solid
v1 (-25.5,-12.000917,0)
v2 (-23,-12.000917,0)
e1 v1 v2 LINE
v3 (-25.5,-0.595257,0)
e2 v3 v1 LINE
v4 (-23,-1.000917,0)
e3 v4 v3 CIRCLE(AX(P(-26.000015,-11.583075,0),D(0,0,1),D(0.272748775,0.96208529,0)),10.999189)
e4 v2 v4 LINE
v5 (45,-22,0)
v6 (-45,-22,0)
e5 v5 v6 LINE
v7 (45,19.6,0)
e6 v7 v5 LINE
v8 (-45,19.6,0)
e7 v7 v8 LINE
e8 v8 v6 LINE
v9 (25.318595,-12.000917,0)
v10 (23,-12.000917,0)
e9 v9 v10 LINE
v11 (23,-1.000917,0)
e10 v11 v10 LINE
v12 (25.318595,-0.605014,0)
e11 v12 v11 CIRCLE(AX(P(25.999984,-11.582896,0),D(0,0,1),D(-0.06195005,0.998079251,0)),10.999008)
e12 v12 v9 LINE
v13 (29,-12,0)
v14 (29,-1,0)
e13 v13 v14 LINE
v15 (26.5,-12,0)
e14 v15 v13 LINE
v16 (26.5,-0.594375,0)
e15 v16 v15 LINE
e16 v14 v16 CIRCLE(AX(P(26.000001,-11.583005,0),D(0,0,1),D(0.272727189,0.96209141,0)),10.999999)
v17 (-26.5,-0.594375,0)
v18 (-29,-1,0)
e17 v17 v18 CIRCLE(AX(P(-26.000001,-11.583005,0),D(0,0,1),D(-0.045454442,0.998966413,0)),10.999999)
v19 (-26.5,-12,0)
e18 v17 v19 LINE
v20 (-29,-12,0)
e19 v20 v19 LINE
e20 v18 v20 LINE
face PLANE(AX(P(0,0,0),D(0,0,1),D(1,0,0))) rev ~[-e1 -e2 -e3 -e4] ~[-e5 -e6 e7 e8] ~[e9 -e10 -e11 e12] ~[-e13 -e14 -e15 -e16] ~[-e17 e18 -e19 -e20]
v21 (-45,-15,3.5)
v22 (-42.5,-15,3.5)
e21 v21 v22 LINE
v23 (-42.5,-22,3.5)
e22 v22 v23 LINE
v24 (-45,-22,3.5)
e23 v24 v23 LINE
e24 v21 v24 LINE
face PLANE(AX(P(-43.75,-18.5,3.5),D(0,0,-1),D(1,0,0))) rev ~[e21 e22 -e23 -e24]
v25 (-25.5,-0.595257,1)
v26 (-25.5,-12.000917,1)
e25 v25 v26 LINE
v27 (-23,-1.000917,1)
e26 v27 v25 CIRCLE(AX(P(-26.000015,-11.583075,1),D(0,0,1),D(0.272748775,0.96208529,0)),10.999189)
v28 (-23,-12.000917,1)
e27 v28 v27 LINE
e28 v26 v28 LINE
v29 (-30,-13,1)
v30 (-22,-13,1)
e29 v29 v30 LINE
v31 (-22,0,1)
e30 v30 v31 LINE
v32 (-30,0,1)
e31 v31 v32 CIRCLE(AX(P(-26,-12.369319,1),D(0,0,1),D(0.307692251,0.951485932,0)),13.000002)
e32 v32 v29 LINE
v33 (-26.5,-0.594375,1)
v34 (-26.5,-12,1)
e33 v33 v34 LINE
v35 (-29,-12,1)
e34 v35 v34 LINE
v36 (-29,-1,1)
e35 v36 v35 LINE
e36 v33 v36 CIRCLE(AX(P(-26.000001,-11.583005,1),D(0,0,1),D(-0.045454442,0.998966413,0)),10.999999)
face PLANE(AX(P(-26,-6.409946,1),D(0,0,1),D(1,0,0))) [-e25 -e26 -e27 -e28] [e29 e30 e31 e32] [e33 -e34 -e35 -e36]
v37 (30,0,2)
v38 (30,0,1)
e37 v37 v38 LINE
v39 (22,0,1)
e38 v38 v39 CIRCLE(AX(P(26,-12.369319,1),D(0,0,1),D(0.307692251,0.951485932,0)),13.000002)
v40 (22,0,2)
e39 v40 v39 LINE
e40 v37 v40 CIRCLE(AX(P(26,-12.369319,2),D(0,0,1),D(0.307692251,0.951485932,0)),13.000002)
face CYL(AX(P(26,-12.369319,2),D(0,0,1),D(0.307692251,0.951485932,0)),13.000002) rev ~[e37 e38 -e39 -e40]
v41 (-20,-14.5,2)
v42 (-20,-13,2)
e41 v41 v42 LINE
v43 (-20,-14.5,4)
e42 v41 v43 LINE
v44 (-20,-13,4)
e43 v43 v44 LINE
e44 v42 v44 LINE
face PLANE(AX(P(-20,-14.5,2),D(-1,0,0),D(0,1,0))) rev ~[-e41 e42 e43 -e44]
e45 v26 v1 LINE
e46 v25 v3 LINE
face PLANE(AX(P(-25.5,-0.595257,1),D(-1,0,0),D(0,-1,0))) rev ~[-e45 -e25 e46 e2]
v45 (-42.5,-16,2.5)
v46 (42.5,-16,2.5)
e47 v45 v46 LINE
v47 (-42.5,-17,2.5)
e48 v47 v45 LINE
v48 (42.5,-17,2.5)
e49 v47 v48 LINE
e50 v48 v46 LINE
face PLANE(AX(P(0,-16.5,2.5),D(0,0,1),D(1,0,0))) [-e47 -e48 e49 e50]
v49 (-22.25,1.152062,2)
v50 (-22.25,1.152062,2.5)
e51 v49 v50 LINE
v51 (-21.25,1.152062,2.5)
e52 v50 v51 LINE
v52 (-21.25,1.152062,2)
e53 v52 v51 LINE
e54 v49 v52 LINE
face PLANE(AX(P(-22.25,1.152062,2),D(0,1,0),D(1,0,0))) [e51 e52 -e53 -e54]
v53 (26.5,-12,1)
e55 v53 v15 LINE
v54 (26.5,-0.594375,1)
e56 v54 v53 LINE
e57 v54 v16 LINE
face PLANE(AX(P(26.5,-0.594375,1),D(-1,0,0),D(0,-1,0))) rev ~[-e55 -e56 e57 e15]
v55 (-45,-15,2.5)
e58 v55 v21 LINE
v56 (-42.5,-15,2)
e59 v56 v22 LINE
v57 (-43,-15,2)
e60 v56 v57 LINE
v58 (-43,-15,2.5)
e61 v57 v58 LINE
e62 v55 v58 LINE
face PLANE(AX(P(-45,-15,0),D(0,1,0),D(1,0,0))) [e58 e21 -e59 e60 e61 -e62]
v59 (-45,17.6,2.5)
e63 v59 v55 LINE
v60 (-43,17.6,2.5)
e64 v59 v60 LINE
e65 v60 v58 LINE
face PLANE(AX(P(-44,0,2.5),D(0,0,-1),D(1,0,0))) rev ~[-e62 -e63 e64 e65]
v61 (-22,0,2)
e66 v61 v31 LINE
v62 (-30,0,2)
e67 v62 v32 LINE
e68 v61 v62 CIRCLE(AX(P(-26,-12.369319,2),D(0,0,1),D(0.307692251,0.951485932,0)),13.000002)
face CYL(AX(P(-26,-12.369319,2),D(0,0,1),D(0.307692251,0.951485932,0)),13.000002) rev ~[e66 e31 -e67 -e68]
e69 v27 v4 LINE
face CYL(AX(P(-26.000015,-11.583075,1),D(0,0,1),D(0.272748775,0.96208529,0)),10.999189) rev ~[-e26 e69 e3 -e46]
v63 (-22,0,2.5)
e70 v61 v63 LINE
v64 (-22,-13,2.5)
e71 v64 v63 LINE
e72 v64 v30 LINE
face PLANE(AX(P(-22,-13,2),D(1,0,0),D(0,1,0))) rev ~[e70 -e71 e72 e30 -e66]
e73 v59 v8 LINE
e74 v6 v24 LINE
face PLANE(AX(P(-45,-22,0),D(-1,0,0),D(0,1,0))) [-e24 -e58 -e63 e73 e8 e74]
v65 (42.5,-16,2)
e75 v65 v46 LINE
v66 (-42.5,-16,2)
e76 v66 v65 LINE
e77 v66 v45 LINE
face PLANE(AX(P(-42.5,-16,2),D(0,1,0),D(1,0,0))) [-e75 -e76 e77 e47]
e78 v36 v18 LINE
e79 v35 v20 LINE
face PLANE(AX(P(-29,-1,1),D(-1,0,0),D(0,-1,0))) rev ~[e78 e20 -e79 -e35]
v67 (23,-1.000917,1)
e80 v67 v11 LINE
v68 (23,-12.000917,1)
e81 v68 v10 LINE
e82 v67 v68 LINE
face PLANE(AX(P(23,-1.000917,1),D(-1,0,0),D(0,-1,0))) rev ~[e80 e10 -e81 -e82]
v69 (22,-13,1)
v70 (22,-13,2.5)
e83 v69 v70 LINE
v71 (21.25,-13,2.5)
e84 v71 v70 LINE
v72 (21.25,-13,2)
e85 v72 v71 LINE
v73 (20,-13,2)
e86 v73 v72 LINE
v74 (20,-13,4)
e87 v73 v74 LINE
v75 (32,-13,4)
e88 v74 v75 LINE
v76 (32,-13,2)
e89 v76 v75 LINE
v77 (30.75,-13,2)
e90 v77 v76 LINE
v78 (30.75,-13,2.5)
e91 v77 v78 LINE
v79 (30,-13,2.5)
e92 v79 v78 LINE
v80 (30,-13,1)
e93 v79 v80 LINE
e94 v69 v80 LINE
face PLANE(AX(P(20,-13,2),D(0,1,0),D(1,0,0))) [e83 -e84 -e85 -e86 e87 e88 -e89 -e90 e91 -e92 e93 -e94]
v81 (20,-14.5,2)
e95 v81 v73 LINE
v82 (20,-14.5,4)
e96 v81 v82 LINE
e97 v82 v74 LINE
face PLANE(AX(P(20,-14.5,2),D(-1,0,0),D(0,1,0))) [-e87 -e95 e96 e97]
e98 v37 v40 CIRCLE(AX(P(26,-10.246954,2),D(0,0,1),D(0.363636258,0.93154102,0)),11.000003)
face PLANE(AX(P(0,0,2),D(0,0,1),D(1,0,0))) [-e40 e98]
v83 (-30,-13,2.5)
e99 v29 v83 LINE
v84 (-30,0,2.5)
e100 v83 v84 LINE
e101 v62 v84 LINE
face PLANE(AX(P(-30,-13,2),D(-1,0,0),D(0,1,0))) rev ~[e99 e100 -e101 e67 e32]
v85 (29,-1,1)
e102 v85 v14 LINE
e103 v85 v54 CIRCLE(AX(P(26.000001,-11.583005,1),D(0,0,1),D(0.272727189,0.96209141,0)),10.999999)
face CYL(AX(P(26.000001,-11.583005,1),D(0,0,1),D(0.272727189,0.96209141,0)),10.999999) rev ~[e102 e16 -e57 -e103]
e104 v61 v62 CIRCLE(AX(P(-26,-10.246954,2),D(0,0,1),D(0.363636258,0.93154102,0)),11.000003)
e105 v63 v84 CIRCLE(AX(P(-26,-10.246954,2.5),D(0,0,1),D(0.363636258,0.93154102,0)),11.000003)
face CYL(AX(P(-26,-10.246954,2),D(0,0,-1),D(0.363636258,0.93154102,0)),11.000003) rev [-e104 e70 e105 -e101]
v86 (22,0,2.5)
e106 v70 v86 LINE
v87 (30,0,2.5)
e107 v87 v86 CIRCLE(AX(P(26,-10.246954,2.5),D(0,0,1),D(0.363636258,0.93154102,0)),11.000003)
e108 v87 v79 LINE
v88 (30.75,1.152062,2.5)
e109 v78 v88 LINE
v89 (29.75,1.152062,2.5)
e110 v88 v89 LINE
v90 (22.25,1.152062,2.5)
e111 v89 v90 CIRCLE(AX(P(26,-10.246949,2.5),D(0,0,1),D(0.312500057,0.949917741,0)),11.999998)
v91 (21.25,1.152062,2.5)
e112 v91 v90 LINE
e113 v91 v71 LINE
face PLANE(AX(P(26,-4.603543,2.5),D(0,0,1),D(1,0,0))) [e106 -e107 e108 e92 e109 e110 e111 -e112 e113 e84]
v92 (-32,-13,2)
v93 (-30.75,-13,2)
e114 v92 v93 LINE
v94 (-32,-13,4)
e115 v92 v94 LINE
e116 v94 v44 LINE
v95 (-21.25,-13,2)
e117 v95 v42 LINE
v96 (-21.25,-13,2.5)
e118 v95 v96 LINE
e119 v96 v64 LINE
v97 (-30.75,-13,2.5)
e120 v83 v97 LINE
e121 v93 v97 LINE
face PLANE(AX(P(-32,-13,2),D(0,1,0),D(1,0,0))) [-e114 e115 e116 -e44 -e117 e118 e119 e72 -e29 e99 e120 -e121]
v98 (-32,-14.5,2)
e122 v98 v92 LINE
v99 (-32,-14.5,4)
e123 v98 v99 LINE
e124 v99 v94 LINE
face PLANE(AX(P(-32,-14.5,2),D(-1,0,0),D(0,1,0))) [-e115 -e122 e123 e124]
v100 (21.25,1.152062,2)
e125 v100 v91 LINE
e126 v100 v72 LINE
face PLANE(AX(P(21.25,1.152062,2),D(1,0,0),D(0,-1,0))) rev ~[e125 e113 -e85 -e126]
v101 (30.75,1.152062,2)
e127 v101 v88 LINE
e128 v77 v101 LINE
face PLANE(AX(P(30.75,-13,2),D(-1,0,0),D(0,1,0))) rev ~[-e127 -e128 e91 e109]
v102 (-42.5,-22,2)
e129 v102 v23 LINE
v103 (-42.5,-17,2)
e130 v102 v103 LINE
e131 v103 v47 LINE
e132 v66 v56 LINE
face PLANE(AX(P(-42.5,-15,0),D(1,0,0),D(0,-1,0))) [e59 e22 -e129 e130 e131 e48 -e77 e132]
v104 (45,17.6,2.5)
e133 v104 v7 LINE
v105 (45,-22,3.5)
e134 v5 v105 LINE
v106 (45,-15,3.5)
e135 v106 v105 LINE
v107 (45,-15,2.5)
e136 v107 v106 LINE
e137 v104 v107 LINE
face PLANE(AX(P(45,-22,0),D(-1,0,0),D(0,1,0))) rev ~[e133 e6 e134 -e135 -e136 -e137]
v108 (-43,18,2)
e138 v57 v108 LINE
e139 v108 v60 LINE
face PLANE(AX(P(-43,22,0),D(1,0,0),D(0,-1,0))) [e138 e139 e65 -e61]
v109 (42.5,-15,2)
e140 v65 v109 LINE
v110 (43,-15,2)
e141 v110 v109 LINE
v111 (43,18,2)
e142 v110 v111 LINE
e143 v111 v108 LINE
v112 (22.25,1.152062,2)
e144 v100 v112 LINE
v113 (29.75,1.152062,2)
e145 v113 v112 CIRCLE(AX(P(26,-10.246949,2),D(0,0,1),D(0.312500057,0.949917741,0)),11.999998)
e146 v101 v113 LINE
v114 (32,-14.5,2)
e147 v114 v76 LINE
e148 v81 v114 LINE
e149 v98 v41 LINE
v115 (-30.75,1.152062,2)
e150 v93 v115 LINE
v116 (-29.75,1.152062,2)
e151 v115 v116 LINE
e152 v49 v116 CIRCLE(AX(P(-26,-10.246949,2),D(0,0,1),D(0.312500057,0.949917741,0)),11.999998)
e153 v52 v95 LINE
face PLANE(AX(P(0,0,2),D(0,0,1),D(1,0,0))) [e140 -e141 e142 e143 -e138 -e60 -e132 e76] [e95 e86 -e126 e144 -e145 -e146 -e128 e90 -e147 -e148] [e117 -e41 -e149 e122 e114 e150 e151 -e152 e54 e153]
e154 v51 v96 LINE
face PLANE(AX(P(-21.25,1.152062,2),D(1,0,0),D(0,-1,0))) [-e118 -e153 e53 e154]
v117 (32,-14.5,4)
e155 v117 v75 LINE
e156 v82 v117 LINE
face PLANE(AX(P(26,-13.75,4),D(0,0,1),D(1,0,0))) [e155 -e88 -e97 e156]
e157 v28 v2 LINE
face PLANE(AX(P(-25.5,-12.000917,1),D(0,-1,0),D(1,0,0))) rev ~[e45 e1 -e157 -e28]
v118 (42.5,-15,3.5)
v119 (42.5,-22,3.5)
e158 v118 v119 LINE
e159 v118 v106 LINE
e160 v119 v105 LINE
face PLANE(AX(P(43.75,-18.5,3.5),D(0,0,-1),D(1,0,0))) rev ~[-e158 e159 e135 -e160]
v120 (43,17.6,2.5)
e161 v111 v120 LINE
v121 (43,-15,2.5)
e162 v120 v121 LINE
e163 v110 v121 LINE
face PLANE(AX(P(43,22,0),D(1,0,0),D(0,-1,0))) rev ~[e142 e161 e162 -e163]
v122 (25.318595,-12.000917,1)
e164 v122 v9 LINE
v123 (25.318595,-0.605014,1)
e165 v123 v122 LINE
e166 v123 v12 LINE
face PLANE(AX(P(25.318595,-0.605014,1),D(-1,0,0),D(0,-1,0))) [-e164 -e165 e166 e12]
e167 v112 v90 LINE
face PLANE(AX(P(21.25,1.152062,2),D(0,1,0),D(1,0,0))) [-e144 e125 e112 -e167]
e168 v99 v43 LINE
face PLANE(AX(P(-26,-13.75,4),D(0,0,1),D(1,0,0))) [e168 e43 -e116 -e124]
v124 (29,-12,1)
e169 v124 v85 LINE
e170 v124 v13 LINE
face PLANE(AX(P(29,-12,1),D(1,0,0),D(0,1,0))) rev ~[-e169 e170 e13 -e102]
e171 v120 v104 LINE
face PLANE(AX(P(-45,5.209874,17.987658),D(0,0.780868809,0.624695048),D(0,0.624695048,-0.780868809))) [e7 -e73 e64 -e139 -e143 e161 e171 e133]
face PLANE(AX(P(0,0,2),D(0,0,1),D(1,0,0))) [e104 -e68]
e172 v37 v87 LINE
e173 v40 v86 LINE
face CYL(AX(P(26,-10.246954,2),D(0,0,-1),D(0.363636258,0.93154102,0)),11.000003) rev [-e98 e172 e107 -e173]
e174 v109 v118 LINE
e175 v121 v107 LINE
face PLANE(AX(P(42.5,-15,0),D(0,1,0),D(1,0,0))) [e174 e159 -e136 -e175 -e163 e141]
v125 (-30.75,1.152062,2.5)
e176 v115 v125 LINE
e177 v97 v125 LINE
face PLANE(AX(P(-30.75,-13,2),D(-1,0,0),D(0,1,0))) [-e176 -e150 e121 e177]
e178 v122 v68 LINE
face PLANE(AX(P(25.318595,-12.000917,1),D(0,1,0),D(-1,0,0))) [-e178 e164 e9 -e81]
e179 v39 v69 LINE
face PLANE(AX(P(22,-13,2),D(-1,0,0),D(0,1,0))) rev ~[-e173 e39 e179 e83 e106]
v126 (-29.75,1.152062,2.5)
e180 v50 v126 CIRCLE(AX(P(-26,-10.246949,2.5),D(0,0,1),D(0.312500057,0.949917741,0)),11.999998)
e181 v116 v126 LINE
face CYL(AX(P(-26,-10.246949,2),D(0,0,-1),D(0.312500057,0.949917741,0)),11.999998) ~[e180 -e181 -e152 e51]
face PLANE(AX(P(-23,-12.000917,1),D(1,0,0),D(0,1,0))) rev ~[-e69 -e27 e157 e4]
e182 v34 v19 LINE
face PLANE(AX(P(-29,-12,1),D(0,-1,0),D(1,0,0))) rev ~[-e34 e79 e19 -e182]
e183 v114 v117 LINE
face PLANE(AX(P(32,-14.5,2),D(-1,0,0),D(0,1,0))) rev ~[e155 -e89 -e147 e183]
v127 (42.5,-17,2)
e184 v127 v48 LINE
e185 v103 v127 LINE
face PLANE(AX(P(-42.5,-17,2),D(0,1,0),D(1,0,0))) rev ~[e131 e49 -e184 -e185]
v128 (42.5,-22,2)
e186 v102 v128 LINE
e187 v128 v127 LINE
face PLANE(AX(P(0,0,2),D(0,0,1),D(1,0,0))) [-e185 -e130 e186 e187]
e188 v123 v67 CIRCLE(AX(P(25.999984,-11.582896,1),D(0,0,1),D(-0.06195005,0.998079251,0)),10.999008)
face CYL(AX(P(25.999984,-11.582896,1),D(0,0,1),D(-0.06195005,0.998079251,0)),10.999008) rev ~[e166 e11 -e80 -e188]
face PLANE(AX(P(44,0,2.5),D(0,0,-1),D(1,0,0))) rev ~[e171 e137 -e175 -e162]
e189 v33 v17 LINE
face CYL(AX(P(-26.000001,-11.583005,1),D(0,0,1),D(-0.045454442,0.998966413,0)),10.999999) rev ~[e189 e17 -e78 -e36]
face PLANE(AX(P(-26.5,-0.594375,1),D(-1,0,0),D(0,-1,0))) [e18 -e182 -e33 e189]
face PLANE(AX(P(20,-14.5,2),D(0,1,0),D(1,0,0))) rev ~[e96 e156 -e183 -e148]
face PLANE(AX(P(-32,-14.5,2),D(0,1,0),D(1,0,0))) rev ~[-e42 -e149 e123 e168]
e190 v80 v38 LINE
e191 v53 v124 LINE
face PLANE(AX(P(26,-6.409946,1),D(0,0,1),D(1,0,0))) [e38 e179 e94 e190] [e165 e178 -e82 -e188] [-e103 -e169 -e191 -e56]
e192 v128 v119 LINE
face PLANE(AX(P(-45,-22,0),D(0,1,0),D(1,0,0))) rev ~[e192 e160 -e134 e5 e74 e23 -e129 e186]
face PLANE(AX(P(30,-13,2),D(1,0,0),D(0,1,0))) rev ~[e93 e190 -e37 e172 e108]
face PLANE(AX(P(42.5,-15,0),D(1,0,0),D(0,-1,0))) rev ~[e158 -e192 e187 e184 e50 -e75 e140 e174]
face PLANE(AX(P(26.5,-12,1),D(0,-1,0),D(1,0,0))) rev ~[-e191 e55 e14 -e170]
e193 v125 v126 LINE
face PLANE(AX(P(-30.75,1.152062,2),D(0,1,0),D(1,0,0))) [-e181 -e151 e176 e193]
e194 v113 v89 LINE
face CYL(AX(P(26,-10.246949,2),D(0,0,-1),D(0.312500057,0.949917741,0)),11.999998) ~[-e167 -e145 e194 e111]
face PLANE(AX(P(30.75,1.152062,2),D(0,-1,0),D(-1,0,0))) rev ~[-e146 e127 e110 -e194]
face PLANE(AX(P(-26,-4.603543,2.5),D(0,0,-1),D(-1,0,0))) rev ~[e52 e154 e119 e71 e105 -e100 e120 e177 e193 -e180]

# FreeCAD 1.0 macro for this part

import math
import FreeCAD as App
import Part
import Sketcher

V = App.Vector
Q = App.Units.Quantity

doc = App.newDocument("Part")
params = doc.addObject("Spreadsheet::Sheet", "Params")
for row, (alias, value) in enumerate([
    ("sketch1_width", "90 mm"),
    ("sketch1_height", "44 mm"),
    ("pad1_length", "2 mm"),
    ("sketch2_width", "8 mm"),
    ("sketch2_height", "13 mm"),
    ("pocket1_length", "1 mm"),
    ("sketch3_radius", "10.999999 mm"),
    ("sketch3_height", "11 mm"),
    ("sketch3_width", "2.5 mm"),
    ("pocket2_length", "5 mm"),
    ("sketch4_width", "12 mm"),
    ("sketch4_height", "1.5 mm"),
    ("pad2_length", "2 mm"),
    ("sketch5_width", "2 mm"),
    ("sketch5_height", "44 mm"),
    ("pad3_length", "2.5 mm"),
    ("sketch6_height", "7 mm"),
    ("sketch6_width", "2.5 mm"),
    ("pad4_length", "3.5 mm"),
    ("sketch7_width", "85 mm"),
    ("sketch7_height", "1 mm"),
    ("pad5_length", "0.5 mm"),
    ("sketch8_width", "1 mm"),
    ("sketch8_height", "13 mm"),
    ("sketch8_width2", "0.75 mm"),
    ("pad6_length", "0.5 mm"),
    ("sketch9_width", "20 mm"),
    ("sketch9_height", "25 mm"),
], start=1):
    params.set(f"A{row}", alias)
    params.set(f"B{row}", "=" + value)
    params.setAlias(f"B{row}", alias)

body = doc.addObject("PartDesign::Body", "Body")

# Sketch on XY plane
sketch1 = body.newObject("Sketcher::SketchObject", "Sketch")
sketch1.AttachmentSupport = (doc.getObject("XY_Plane"), [""])
sketch1.MapMode = "FlatFace"
sketch1.addGeometry([
    Part.LineSegment(V(-45, 22, 0), V(-45, -22, 0)),
    Part.LineSegment(V(-45, -22, 0), V(45, -22, 0)),
    Part.LineSegment(V(45, -22, 0), V(45, 22, 0)),
    Part.LineSegment(V(45, 22, 0), V(-45, 22, 0)),
], False)
sketch1.addConstraint([
    Sketcher.Constraint("Coincident", 0, 2, 1, 1),
    Sketcher.Constraint("Coincident", 1, 2, 2, 1),
    Sketcher.Constraint("Coincident", 2, 2, 3, 1),
    Sketcher.Constraint("Coincident", 3, 2, 0, 1),
    Sketcher.Constraint("Vertical", 0),
    Sketcher.Constraint("Horizontal", 1),
    Sketcher.Constraint("Vertical", 2),
    Sketcher.Constraint("Horizontal", 3),
    Sketcher.Constraint("Symmetric", 0, 2, 2, 2, -1, 1),
    Sketcher.Constraint("DistanceX", 1, 1, 1, 2, Q("90 mm")),
    Sketcher.Constraint("DistanceY", 0, 2, 0, 1, Q("44 mm")),
])
sketch1.setExpression("Constraints[9]", "Params.sketch1_width")
sketch1.setExpression("Constraints[10]", "Params.sketch1_height")
pad1 = body.newObject("PartDesign::Pad", "Pad")
pad1.Profile = sketch1
pad1.setExpression("Length", "Params.pad1_length")

# Sketch on XY plane
sketch2 = body.newObject("Sketcher::SketchObject", "Sketch001")
sketch2.AttachmentSupport = (doc.getObject("XY_Plane"), [""])
sketch2.MapMode = "FlatFace"
sketch2.AttachmentOffset = App.Placement(V(0, 0, 2), App.Rotation())
sketch2.addGeometry([
    Part.LineSegment(V(-30, 0, 0), V(-30, -13, 0)),  # 0
    Part.LineSegment(V(-30, -13, 0), V(-22, -13, 0)),  # 1
    Part.LineSegment(V(-22, -13, 0), V(-22, 0, 0)),  # 2
    Part.ArcOfCircle(Part.Circle(V(-26, -12, 0), V(0, 0, 1), 13), math.radians(72), math.radians(108)),  # 3
    Part.LineSegment(V(22, 0, 0), V(22, -13, 0)),  # 4
    Part.LineSegment(V(22, -13, 0), V(30, -13, 0)),  # 5
    Part.LineSegment(V(30, -13, 0), V(30, 0, 0)),  # 6
    Part.ArcOfCircle(Part.Circle(V(26, -12, 0), V(0, 0, 1), 13), math.radians(72), math.radians(108)),  # 7
], False)
sketch2.addConstraint([
    Sketcher.Constraint("Coincident", 0, 2, 1, 1),
    Sketcher.Constraint("Coincident", 1, 2, 2, 1),
    Sketcher.Constraint("Coincident", 2, 2, 3, 1),
    Sketcher.Constraint("Coincident", 3, 2, 0, 1),
    Sketcher.Constraint("Coincident", 4, 2, 5, 1),
    Sketcher.Constraint("Coincident", 5, 2, 6, 1),
    Sketcher.Constraint("Coincident", 6, 2, 7, 1),
    Sketcher.Constraint("Coincident", 7, 2, 4, 1),
    Sketcher.Constraint("Vertical", 0),
    Sketcher.Constraint("Horizontal", 1),
    Sketcher.Constraint("Vertical", 2),
    Sketcher.Constraint("Vertical", 4),
    Sketcher.Constraint("Horizontal", 5),
    Sketcher.Constraint("Vertical", 6),
    Sketcher.Constraint("Equal", 3, 7),
    Sketcher.Constraint("Symmetric", 3, 2, 6, 2, -1, 1),
    Sketcher.Constraint("Symmetric", 2, 2, 7, 2, -1, 1),
    Sketcher.Constraint("Symmetric", 3, 3, 7, 3, -2),
    Sketcher.Constraint("Horizontal", 1, 2, 4, 2),
    Sketcher.Constraint("DistanceX", 1, 1, 1, 2, Q("8 mm")),
    Sketcher.Constraint("DistanceY", 0, 2, 0, 1, Q("13 mm")),
    Sketcher.Constraint("DistanceX", 3, 3, -1, 1, Q("26 mm")),
    Sketcher.Constraint("Radius", 3, Q("13.000002 mm")),
])
sketch2.setExpression("Constraints[19]", "Params.sketch2_width")
sketch2.setExpression("Constraints[20]", "Params.sketch2_height")
pocket1 = body.newObject("PartDesign::Pocket", "Pocket")
pocket1.Profile = sketch2
pocket1.setExpression("Length", "Params.pocket1_length")

# Sketch on XY plane
sketch3 = body.newObject("Sketcher::SketchObject", "Sketch002")
sketch3.AttachmentSupport = (doc.getObject("XY_Plane"), [""])
sketch3.MapMode = "FlatFace"
sketch3.AttachmentOffset = App.Placement(V(0, 0, 1), App.Rotation())
sketch3.addGeometry([
    Part.LineSegment(V(-29, -1, 0), V(-29, -12, 0)),  # 0
    Part.LineSegment(V(-29, -12, 0), V(-26.5, -12, 0)),  # 1
    Part.LineSegment(V(-26.5, -12, 0), V(-26.5, -0.6, 0)),  # 2
    Part.ArcOfCircle(Part.Circle(V(-26, -11.6, 0), V(0, 0, 1), 11), math.radians(92.61), math.radians(105.83)),  # 3
    Part.LineSegment(V(-23, -12, 0), V(-23, -1, 0)),  # 4
    Part.ArcOfCircle(Part.Circle(V(-26, -11.6, 0), V(0, 0, 1), 11), math.radians(74.17), math.radians(87.39)),  # 5
    Part.LineSegment(V(-25.5, -0.6, 0), V(-25.5, -12, 0)),  # 6
    Part.LineSegment(V(-25.5, -12, 0), V(-23, -12, 0)),  # 7
    Part.LineSegment(V(23, -1, 0), V(23, -12, 0)),  # 8
    Part.LineSegment(V(23, -12, 0), V(25.3, -12, 0)),  # 9
    Part.LineSegment(V(25.3, -12, 0), V(25.3, -0.6, 0)),  # 10
    Part.ArcOfCircle(Part.Circle(V(26, -11.6, 0), V(0, 0, 1), 11), math.radians(93.55), math.radians(105.83)),  # 11
    Part.LineSegment(V(29, -12, 0), V(29, -1, 0)),  # 12
    Part.ArcOfCircle(Part.Circle(V(26, -11.6, 0), V(0, 0, 1), 11), math.radians(74.17), math.radians(87.39)),  # 13
    Part.LineSegment(V(26.5, -0.6, 0), V(26.5, -12, 0)),  # 14
    Part.LineSegment(V(26.5, -12, 0), V(29, -12, 0)),  # 15
], False)
sketch3.addConstraint([
    Sketcher.Constraint("Coincident", 0, 2, 1, 1),
    Sketcher.Constraint("Coincident", 1, 2, 2, 1),
    Sketcher.Constraint("Coincident", 2, 2, 3, 1),
    Sketcher.Constraint("Coincident", 3, 2, 0, 1),
    Sketcher.Constraint("Coincident", 4, 2, 5, 1),
    Sketcher.Constraint("Coincident", 5, 2, 6, 1),
    Sketcher.Constraint("Coincident", 6, 2, 7, 1),
    Sketcher.Constraint("Coincident", 7, 2, 4, 1),
    Sketcher.Constraint("Coincident", 8, 2, 9, 1),
    Sketcher.Constraint("Coincident", 9, 2, 10, 1),
    Sketcher.Constraint("Coincident", 10, 2, 11, 1),
    Sketcher.Constraint("Coincident", 11, 2, 8, 1),
    Sketcher.Constraint("Coincident", 12, 2, 13, 1),
    Sketcher.Constraint("Coincident", 13, 2, 14, 1),
    Sketcher.Constraint("Coincident", 14, 2, 15, 1),
    Sketcher.Constraint("Coincident", 15, 2, 12, 1),
    Sketcher.Constraint("Vertical", 0),
    Sketcher.Constraint("Horizontal", 1),
    Sketcher.Constraint("Vertical", 2),
    Sketcher.Constraint("Vertical", 4),
    Sketcher.Constraint("Vertical", 6),
    Sketcher.Constraint("Horizontal", 7),
    Sketcher.Constraint("Vertical", 8),
    Sketcher.Constraint("Horizontal", 9),
    Sketcher.Constraint("Vertical", 10),
    Sketcher.Constraint("Vertical", 12),
    Sketcher.Constraint("Vertical", 14),
    Sketcher.Constraint("Horizontal", 15),
    Sketcher.Constraint("Equal", 3, 13),
    Sketcher.Constraint("Symmetric", 3, 3, 13, 3, -2),
    Sketcher.Constraint("Symmetric", 7, 2, 8, 2, -2),
    Sketcher.Constraint("Symmetric", 1, 2, 14, 2, -2),
    Sketcher.Constraint("Horizontal", 4, 2, 11, 2),
    Sketcher.Constraint("Horizontal", 3, 2, 12, 2),
    Sketcher.Constraint("Equal", 1, 7),
    Sketcher.Constraint("Equal", 0, 4),
    Sketcher.Constraint("Radius", 3, Q("10.999999 mm")),
    Sketcher.Constraint("DistanceY", 0, 2, 0, 1, Q("11 mm")),
    Sketcher.Constraint("DistanceX", 1, 1, 1, 2, Q("2.5 mm")),
    Sketcher.Constraint("DistanceX", 3, 3, -1, 1, Q("26.000001 mm")),
    Sketcher.Constraint("DistanceX", 0, 2, -1, 1, Q("29 mm")),
    Sketcher.Constraint("DistanceY", 0, 2, -1, 1, Q("12 mm")),
    Sketcher.Constraint("DistanceX", 4, 2, -1, 1, Q("23 mm")),
    Sketcher.Constraint("DistanceX", 5, 3, 11, 3, Q("51.999999 mm")),
    Sketcher.Constraint("Radius", 5, Q("10.999189 mm")),
    Sketcher.Constraint("Radius", 11, Q("10.999008 mm")),
    Sketcher.Constraint("DistanceY", 6, 2, 6, 1, Q("11.40566 mm")),
    Sketcher.Constraint("DistanceY", 5, 3, 2, 2, Q("10.9887 mm")),
    Sketcher.Constraint("DistanceX", 9, 1, 9, 2, Q("2.318595 mm")),
])
sketch3.setExpression("Constraints[36]", "Params.sketch3_radius")
sketch3.setExpression("Constraints[37]", "Params.sketch3_height")
sketch3.setExpression("Constraints[38]", "Params.sketch3_width")
pocket2 = body.newObject("PartDesign::Pocket", "Pocket001")
pocket2.Profile = sketch3
pocket2.setExpression("Length", "Params.pocket2_length")

# Sketch on XY plane
sketch4 = body.newObject("Sketcher::SketchObject", "Sketch003")
sketch4.AttachmentSupport = (doc.getObject("XY_Plane"), [""])
sketch4.MapMode = "FlatFace"
sketch4.AttachmentOffset = App.Placement(V(0, 0, 2), App.Rotation())
sketch4.addGeometry([
    Part.LineSegment(V(-32, -13, 0), V(-32, -14.5, 0)),  # 0
    Part.LineSegment(V(-32, -14.5, 0), V(-20, -14.5, 0)),  # 1
    Part.LineSegment(V(-20, -14.5, 0), V(-20, -13, 0)),  # 2
    Part.LineSegment(V(-20, -13, 0), V(-32, -13, 0)),  # 3
    Part.LineSegment(V(20, -13, 0), V(20, -14.5, 0)),  # 4
    Part.LineSegment(V(20, -14.5, 0), V(32, -14.5, 0)),  # 5
    Part.LineSegment(V(32, -14.5, 0), V(32, -13, 0)),  # 6
    Part.LineSegment(V(32, -13, 0), V(20, -13, 0)),  # 7
], False)
sketch4.addConstraint([
    Sketcher.Constraint("Coincident", 0, 2, 1, 1),
    Sketcher.Constraint("Coincident", 1, 2, 2, 1),
    Sketcher.Constraint("Coincident", 2, 2, 3, 1),
    Sketcher.Constraint("Coincident", 3, 2, 0, 1),
    Sketcher.Constraint("Coincident", 4, 2, 5, 1),
    Sketcher.Constraint("Coincident", 5, 2, 6, 1),
    Sketcher.Constraint("Coincident", 6, 2, 7, 1),
    Sketcher.Constraint("Coincident", 7, 2, 4, 1),
    Sketcher.Constraint("Vertical", 0),
    Sketcher.Constraint("Horizontal", 1),
    Sketcher.Constraint("Vertical", 2),
    Sketcher.Constraint("Horizontal", 3),
    Sketcher.Constraint("Vertical", 4),
    Sketcher.Constraint("Horizontal", 5),
    Sketcher.Constraint("Vertical", 6),
    Sketcher.Constraint("Horizontal", 7),
    Sketcher.Constraint("Symmetric", 1, 2, 4, 2, -2),
    Sketcher.Constraint("Symmetric", 3, 2, 6, 2, -2),
    Sketcher.Constraint("DistanceX", 1, 1, 1, 2, Q("12 mm")),
    Sketcher.Constraint("DistanceY", 0, 2, 0, 1, Q("1.5 mm")),
    Sketcher.Constraint("DistanceX", 0, 2, -1, 1, Q("32 mm")),
    Sketcher.Constraint("DistanceY", 2, 2, -1, 1, Q("13 mm")),
])
sketch4.setExpression("Constraints[18]", "Params.sketch4_width")
sketch4.setExpression("Constraints[19]", "Params.sketch4_height")
pad2 = body.newObject("PartDesign::Pad", "Pad001")
pad2.Profile = sketch4
pad2.setExpression("Length", "Params.pad2_length")

# Sketch on XY plane
sketch5 = body.newObject("Sketcher::SketchObject", "Sketch004")
sketch5.AttachmentSupport = (doc.getObject("XY_Plane"), [""])
sketch5.MapMode = "FlatFace"
sketch5.addGeometry([
    Part.LineSegment(V(-45, -22, 0), V(-45, 22, 0)),  # 0
    Part.LineSegment(V(-45, 22, 0), V(-43, 22, 0)),  # 1
    Part.LineSegment(V(-43, 22, 0), V(-43, -22, 0)),  # 2
    Part.LineSegment(V(-43, -22, 0), V(-45, -22, 0)),  # 3
    Part.LineSegment(V(43, -22, 0), V(43, 22, 0)),  # 4
    Part.LineSegment(V(43, 22, 0), V(45, 22, 0)),  # 5
    Part.LineSegment(V(45, 22, 0), V(45, -22, 0)),  # 6
    Part.LineSegment(V(45, -22, 0), V(43, -22, 0)),  # 7
], False)
sketch5.addConstraint([
    Sketcher.Constraint("Coincident", 0, 2, 1, 1),
    Sketcher.Constraint("Coincident", 1, 2, 2, 1),
    Sketcher.Constraint("Coincident", 2, 2, 3, 1),
    Sketcher.Constraint("Coincident", 3, 2, 0, 1),
    Sketcher.Constraint("Coincident", 4, 2, 5, 1),
    Sketcher.Constraint("Coincident", 5, 2, 6, 1),
    Sketcher.Constraint("Coincident", 6, 2, 7, 1),
    Sketcher.Constraint("Coincident", 7, 2, 4, 1),
    Sketcher.Constraint("Vertical", 0),
    Sketcher.Constraint("Horizontal", 1),
    Sketcher.Constraint("Vertical", 2),
    Sketcher.Constraint("Horizontal", 3),
    Sketcher.Constraint("Vertical", 4),
    Sketcher.Constraint("Horizontal", 5),
    Sketcher.Constraint("Vertical", 6),
    Sketcher.Constraint("Horizontal", 7),
    Sketcher.Constraint("Symmetric", 2, 2, 4, 2, -1, 1),
    Sketcher.Constraint("Symmetric", 0, 2, 6, 2, -1, 1),
    Sketcher.Constraint("Horizontal", 1, 2, 4, 2),
    Sketcher.Constraint("DistanceX", 1, 1, 1, 2, Q("2 mm")),
    Sketcher.Constraint("DistanceY", 0, 1, 0, 2, Q("44 mm")),
    Sketcher.Constraint("DistanceX", 0, 2, -1, 1, Q("45 mm")),
])
sketch5.setExpression("Constraints[19]", "Params.sketch5_width")
sketch5.setExpression("Constraints[20]", "Params.sketch5_height")
pad3 = body.newObject("PartDesign::Pad", "Pad002")
pad3.Profile = sketch5
pad3.setExpression("Length", "Params.pad3_length")

# Sketch on XY plane
sketch6 = body.newObject("Sketcher::SketchObject", "Sketch005")
sketch6.AttachmentSupport = (doc.getObject("XY_Plane"), [""])
sketch6.MapMode = "FlatFace"
sketch6.addGeometry([
    Part.LineSegment(V(-45, -22, 0), V(-45, -15, 0)),  # 0
    Part.LineSegment(V(-45, -15, 0), V(-42.5, -15, 0)),  # 1
    Part.LineSegment(V(-42.5, -15, 0), V(-42.5, -22, 0)),  # 2
    Part.LineSegment(V(-42.5, -22, 0), V(-45, -22, 0)),  # 3
    Part.LineSegment(V(42.5, -22, 0), V(42.5, -15, 0)),  # 4
    Part.LineSegment(V(42.5, -15, 0), V(45, -15, 0)),  # 5
    Part.LineSegment(V(45, -15, 0), V(45, -22, 0)),  # 6
    Part.LineSegment(V(45, -22, 0), V(42.5, -22, 0)),  # 7
], False)
sketch6.addConstraint([
    Sketcher.Constraint("Coincident", 0, 2, 1, 1),
    Sketcher.Constraint("Coincident", 1, 2, 2, 1),
    Sketcher.Constraint("Coincident", 2, 2, 3, 1),
    Sketcher.Constraint("Coincident", 3, 2, 0, 1),
    Sketcher.Constraint("Coincident", 4, 2, 5, 1),
    Sketcher.Constraint("Coincident", 5, 2, 6, 1),
    Sketcher.Constraint("Coincident", 6, 2, 7, 1),
    Sketcher.Constraint("Coincident", 7, 2, 4, 1),
    Sketcher.Constraint("Vertical", 0),
    Sketcher.Constraint("Horizontal", 1),
    Sketcher.Constraint("Vertical", 2),
    Sketcher.Constraint("Horizontal", 3),
    Sketcher.Constraint("Vertical", 4),
    Sketcher.Constraint("Horizontal", 5),
    Sketcher.Constraint("Vertical", 6),
    Sketcher.Constraint("Horizontal", 7),
    Sketcher.Constraint("Symmetric", 1, 2, 4, 2, -2),
    Sketcher.Constraint("Symmetric", 3, 2, 6, 2, -2),
    Sketcher.Constraint("DistanceY", 0, 1, 0, 2, Q("7 mm")),
    Sketcher.Constraint("DistanceX", 1, 1, 1, 2, Q("2.5 mm")),
    Sketcher.Constraint("DistanceX", 0, 2, -1, 1, Q("45 mm")),
    Sketcher.Constraint("DistanceY", 0, 2, -1, 1, Q("15 mm")),
])
sketch6.setExpression("Constraints[18]", "Params.sketch6_height")
sketch6.setExpression("Constraints[19]", "Params.sketch6_width")
pad4 = body.newObject("PartDesign::Pad", "Pad003")
pad4.Profile = sketch6
pad4.setExpression("Length", "Params.pad4_length")

# Sketch on XY plane
sketch7 = body.newObject("Sketcher::SketchObject", "Sketch006")
sketch7.AttachmentSupport = (doc.getObject("XY_Plane"), [""])
sketch7.MapMode = "FlatFace"
sketch7.AttachmentOffset = App.Placement(V(0, 0, 2), App.Rotation())
sketch7.addGeometry([
    Part.LineSegment(V(-42.5, -16, 0), V(-42.5, -17, 0)),
    Part.LineSegment(V(-42.5, -17, 0), V(42.5, -17, 0)),
    Part.LineSegment(V(42.5, -17, 0), V(42.5, -16, 0)),
    Part.LineSegment(V(42.5, -16, 0), V(-42.5, -16, 0)),
], False)
sketch7.addConstraint([
    Sketcher.Constraint("Coincident", 0, 2, 1, 1),
    Sketcher.Constraint("Coincident", 1, 2, 2, 1),
    Sketcher.Constraint("Coincident", 2, 2, 3, 1),
    Sketcher.Constraint("Coincident", 3, 2, 0, 1),
    Sketcher.Constraint("Vertical", 0),
    Sketcher.Constraint("Horizontal", 1),
    Sketcher.Constraint("Vertical", 2),
    Sketcher.Constraint("Horizontal", 3),
    Sketcher.Constraint("DistanceX", 1, 1, 1, 2, Q("85 mm")),
    Sketcher.Constraint("DistanceY", 0, 2, 0, 1, Q("1 mm")),
    Sketcher.Constraint("DistanceY", 0, 2, -1, 1, Q("17 mm")),
    Sketcher.Constraint("DistanceX", 0, 2, -1, 1, Q("42.5 mm")),
])
sketch7.setExpression("Constraints[8]", "Params.sketch7_width")
sketch7.setExpression("Constraints[9]", "Params.sketch7_height")
pad5 = body.newObject("PartDesign::Pad", "Pad004")
pad5.Profile = sketch7
pad5.setExpression("Length", "Params.pad5_length")

# Sketch on XY plane
sketch8 = body.newObject("Sketcher::SketchObject", "Sketch007")
sketch8.AttachmentSupport = (doc.getObject("XY_Plane"), [""])
sketch8.MapMode = "FlatFace"
sketch8.AttachmentOffset = App.Placement(V(0, 0, 2), App.Rotation())
sketch8.addGeometry([
    Part.LineSegment(V(-30.8, 1.2, 0), V(-30.8, -13, 0)),  # 0
    Part.LineSegment(V(-30.8, -13, 0), V(-30, -13, 0)),  # 1
    Part.LineSegment(V(-30, -13, 0), V(-30, 0, 0)),  # 2
    Part.ArcOfCircle(Part.Circle(V(-26, -10.2, 0), V(0, 0, 1), 11), math.radians(69), math.radians(111)),  # 3
    Part.LineSegment(V(-22, 0, 0), V(-22, -13, 0)),  # 4
    Part.LineSegment(V(-22, -13, 0), V(-21.2, -13, 0)),  # 5
    Part.LineSegment(V(-21.2, -13, 0), V(-21.2, 1.2, 0)),  # 6
    Part.LineSegment(V(-21.2, 1.2, 0), V(-22.2, 1.2, 0)),  # 7
    Part.ArcOfCircle(Part.Circle(V(-26, -10.2, 0), V(0, 0, 1), 12), math.radians(72), math.radians(108)),  # 8
    Part.LineSegment(V(-29.8, 1.2, 0), V(-30.8, 1.2, 0)),  # 9
    Part.LineSegment(V(21.2, 1.2, 0), V(21.2, -13, 0)),  # 10
    Part.LineSegment(V(21.2, -13, 0), V(22, -13, 0)),  # 11
    Part.LineSegment(V(22, -13, 0), V(22, 0, 0)),  # 12
    Part.ArcOfCircle(Part.Circle(V(26, -10.2, 0), V(0, 0, 1), 11), math.radians(69), math.radians(111)),  # 13
    Part.LineSegment(V(30, 0, 0), V(30, -13, 0)),  # 14
    Part.LineSegment(V(30, -13, 0), V(30.8, -13, 0)),  # 15
    Part.LineSegment(V(30.8, -13, 0), V(30.8, 1.2, 0)),  # 16
    Part.LineSegment(V(30.8, 1.2, 0), V(29.8, 1.2, 0)),  # 17
    Part.ArcOfCircle(Part.Circle(V(26, -10.2, 0), V(0, 0, 1), 12), math.radians(72), math.radians(108)),  # 18
    Part.LineSegment(V(22.2, 1.2, 0), V(21.2, 1.2, 0)),  # 19
], False)
sketch8.addConstraint([
    Sketcher.Constraint("Coincident", 0, 2, 1, 1),
    Sketcher.Constraint("Coincident", 1, 2, 2, 1),
    Sketcher.Constraint("Coincident", 2, 2, 3, 2),
    Sketcher.Constraint("Coincident", 3, 1, 4, 1),
    Sketcher.Constraint("Coincident", 4, 2, 5, 1),
    Sketcher.Constraint("Coincident", 5, 2, 6, 1),
    Sketcher.Constraint("Coincident", 6, 2, 7, 1),
    Sketcher.Constraint("Coincident", 7, 2, 8, 1),
    Sketcher.Constraint("Coincident", 8, 2, 9, 1),
    Sketcher.Constraint("Coincident", 9, 2, 0, 1),
    Sketcher.Constraint("Coincident", 10, 2, 11, 1),
    Sketcher.Constraint("Coincident", 11, 2, 12, 1),
    Sketcher.Constraint("Coincident", 12, 2, 13, 2),
    Sketcher.Constraint("Coincident", 13, 1, 14, 1),
    Sketcher.Constraint("Coincident", 14, 2, 15, 1),
    Sketcher.Constraint("Coincident", 15, 2, 16, 1),
    Sketcher.Constraint("Coincident", 16, 2, 17, 1),
    Sketcher.Constraint("Coincident", 17, 2, 18, 1),
    Sketcher.Constraint("Coincident", 18, 2, 19, 1),
    Sketcher.Constraint("Coincident", 19, 2, 10, 1),
    Sketcher.Constraint("Vertical", 0),
    Sketcher.Constraint("Horizontal", 1),
    Sketcher.Constraint("Vertical", 2),
    Sketcher.Constraint("Vertical", 4),
    Sketcher.Constraint("Horizontal", 5),
    Sketcher.Constraint("Vertical", 6),
    Sketcher.Constraint("Horizontal", 7),
    Sketcher.Constraint("Horizontal", 9),
    Sketcher.Constraint("Vertical", 10),
    Sketcher.Constraint("Horizontal", 11),
    Sketcher.Constraint("Vertical", 12),
    Sketcher.Constraint("Vertical", 14),
    Sketcher.Constraint("Horizontal", 15),
    Sketcher.Constraint("Vertical", 16),
    Sketcher.Constraint("Horizontal", 17),
    Sketcher.Constraint("Horizontal", 19),
    Sketcher.Constraint("Coincident", 8, 3, 3, 3),
    Sketcher.Constraint("Coincident", 18, 3, 13, 3),
    Sketcher.Constraint("Equal", 3, 13),
    Sketcher.Constraint("Equal", 8, 18),
    Sketcher.Constraint("Symmetric", 3, 1, 12, 2, -1, 1),
    Sketcher.Constraint("Symmetric", 2, 2, 13, 1, -1, 1),
    Sketcher.Constraint("Symmetric", 3, 3, 13, 3, -2),
    Sketcher.Constraint("Symmetric", 5, 2, 10, 2, -2),
    Sketcher.Constraint("Symmetric", 0, 2, 15, 2, -2),
    Sketcher.Constraint("Horizontal", 1, 2, 4, 2),
    Sketcher.Constraint("Horizontal", 7, 2, 8, 2),
    Sketcher.Constraint("Horizontal", 9, 2, 16, 2),
    Sketcher.Constraint("Horizontal", 17, 2, 18, 2),
    Sketcher.Constraint("Equal", 1, 5),
    Sketcher.Constraint("DistanceX", 7, 2, 7, 1, Q("1 mm")),
    Sketcher.Constraint("DistanceY", 2, 1, 2, 2, Q("13 mm")),
    Sketcher.Constraint("DistanceX", 3, 3, -1, 1, Q("26 mm")),
    Sketcher.Constraint("DistanceX", 1, 2, -1, 1, Q("30 mm")),
    Sketcher.Constraint("DistanceX", 1, 1, 1, 2, Q("0.75 mm")),
    Sketcher.Constraint("Radius", 3, Q("11.000003 mm")),
    Sketcher.Constraint("Radius", 8, Q("11.999998 mm")),
])
sketch8.setExpression("Constraints[50]", "Params.sketch8_width")
sketch8.setExpression("Constraints[51]", "Params.sketch8_height")
sketch8.setExpression("Constraints[54]", "Params.sketch8_width2")
pad6 = body.newObject("PartDesign::Pad", "Pad005")
pad6.Profile = sketch8
pad6.setExpression("Length", "Params.pad6_length")

# Sketch on YZ plane
sketch9 = body.newObject("Sketcher::SketchObject", "Sketch008")
sketch9.AttachmentSupport = (doc.getObject("YZ_Plane"), [""])
sketch9.MapMode = "FlatFace"
sketch9.AttachmentOffset = App.Placement(V(0, 0, -45), App.Rotation())
sketch9.addGeometry([
    Part.LineSegment(V(5, 18, 0), V(25, 18, 0)),
    Part.LineSegment(V(25, 18, 0), V(25, -7, 0)),
    Part.LineSegment(V(25, -7, 0), V(5, 18, 0)),
], False)
sketch9.addConstraint([
    Sketcher.Constraint("Coincident", 0, 2, 1, 1),
    Sketcher.Constraint("Coincident", 1, 2, 2, 1),
    Sketcher.Constraint("Coincident", 2, 2, 0, 1),
    Sketcher.Constraint("Horizontal", 0),
    Sketcher.Constraint("Vertical", 1),
    Sketcher.Constraint("DistanceX", 0, 1, 0, 2, Q("20 mm")),
    Sketcher.Constraint("DistanceY", 1, 2, 1, 1, Q("25 mm")),
    Sketcher.Constraint("DistanceX", -1, 1, 0, 2, Q("25.209874 mm")),
    Sketcher.Constraint("DistanceY", -1, 1, 0, 2, Q("17.987658 mm")),
])
sketch9.setExpression("Constraints[5]", "Params.sketch9_width")
sketch9.setExpression("Constraints[6]", "Params.sketch9_height")
pocket3 = body.newObject("PartDesign::Pocket", "Pocket002")
pocket3.Profile = sketch9
pocket3.Type = "ThroughAll"
pocket3.Reversed = True

doc.recompute()
